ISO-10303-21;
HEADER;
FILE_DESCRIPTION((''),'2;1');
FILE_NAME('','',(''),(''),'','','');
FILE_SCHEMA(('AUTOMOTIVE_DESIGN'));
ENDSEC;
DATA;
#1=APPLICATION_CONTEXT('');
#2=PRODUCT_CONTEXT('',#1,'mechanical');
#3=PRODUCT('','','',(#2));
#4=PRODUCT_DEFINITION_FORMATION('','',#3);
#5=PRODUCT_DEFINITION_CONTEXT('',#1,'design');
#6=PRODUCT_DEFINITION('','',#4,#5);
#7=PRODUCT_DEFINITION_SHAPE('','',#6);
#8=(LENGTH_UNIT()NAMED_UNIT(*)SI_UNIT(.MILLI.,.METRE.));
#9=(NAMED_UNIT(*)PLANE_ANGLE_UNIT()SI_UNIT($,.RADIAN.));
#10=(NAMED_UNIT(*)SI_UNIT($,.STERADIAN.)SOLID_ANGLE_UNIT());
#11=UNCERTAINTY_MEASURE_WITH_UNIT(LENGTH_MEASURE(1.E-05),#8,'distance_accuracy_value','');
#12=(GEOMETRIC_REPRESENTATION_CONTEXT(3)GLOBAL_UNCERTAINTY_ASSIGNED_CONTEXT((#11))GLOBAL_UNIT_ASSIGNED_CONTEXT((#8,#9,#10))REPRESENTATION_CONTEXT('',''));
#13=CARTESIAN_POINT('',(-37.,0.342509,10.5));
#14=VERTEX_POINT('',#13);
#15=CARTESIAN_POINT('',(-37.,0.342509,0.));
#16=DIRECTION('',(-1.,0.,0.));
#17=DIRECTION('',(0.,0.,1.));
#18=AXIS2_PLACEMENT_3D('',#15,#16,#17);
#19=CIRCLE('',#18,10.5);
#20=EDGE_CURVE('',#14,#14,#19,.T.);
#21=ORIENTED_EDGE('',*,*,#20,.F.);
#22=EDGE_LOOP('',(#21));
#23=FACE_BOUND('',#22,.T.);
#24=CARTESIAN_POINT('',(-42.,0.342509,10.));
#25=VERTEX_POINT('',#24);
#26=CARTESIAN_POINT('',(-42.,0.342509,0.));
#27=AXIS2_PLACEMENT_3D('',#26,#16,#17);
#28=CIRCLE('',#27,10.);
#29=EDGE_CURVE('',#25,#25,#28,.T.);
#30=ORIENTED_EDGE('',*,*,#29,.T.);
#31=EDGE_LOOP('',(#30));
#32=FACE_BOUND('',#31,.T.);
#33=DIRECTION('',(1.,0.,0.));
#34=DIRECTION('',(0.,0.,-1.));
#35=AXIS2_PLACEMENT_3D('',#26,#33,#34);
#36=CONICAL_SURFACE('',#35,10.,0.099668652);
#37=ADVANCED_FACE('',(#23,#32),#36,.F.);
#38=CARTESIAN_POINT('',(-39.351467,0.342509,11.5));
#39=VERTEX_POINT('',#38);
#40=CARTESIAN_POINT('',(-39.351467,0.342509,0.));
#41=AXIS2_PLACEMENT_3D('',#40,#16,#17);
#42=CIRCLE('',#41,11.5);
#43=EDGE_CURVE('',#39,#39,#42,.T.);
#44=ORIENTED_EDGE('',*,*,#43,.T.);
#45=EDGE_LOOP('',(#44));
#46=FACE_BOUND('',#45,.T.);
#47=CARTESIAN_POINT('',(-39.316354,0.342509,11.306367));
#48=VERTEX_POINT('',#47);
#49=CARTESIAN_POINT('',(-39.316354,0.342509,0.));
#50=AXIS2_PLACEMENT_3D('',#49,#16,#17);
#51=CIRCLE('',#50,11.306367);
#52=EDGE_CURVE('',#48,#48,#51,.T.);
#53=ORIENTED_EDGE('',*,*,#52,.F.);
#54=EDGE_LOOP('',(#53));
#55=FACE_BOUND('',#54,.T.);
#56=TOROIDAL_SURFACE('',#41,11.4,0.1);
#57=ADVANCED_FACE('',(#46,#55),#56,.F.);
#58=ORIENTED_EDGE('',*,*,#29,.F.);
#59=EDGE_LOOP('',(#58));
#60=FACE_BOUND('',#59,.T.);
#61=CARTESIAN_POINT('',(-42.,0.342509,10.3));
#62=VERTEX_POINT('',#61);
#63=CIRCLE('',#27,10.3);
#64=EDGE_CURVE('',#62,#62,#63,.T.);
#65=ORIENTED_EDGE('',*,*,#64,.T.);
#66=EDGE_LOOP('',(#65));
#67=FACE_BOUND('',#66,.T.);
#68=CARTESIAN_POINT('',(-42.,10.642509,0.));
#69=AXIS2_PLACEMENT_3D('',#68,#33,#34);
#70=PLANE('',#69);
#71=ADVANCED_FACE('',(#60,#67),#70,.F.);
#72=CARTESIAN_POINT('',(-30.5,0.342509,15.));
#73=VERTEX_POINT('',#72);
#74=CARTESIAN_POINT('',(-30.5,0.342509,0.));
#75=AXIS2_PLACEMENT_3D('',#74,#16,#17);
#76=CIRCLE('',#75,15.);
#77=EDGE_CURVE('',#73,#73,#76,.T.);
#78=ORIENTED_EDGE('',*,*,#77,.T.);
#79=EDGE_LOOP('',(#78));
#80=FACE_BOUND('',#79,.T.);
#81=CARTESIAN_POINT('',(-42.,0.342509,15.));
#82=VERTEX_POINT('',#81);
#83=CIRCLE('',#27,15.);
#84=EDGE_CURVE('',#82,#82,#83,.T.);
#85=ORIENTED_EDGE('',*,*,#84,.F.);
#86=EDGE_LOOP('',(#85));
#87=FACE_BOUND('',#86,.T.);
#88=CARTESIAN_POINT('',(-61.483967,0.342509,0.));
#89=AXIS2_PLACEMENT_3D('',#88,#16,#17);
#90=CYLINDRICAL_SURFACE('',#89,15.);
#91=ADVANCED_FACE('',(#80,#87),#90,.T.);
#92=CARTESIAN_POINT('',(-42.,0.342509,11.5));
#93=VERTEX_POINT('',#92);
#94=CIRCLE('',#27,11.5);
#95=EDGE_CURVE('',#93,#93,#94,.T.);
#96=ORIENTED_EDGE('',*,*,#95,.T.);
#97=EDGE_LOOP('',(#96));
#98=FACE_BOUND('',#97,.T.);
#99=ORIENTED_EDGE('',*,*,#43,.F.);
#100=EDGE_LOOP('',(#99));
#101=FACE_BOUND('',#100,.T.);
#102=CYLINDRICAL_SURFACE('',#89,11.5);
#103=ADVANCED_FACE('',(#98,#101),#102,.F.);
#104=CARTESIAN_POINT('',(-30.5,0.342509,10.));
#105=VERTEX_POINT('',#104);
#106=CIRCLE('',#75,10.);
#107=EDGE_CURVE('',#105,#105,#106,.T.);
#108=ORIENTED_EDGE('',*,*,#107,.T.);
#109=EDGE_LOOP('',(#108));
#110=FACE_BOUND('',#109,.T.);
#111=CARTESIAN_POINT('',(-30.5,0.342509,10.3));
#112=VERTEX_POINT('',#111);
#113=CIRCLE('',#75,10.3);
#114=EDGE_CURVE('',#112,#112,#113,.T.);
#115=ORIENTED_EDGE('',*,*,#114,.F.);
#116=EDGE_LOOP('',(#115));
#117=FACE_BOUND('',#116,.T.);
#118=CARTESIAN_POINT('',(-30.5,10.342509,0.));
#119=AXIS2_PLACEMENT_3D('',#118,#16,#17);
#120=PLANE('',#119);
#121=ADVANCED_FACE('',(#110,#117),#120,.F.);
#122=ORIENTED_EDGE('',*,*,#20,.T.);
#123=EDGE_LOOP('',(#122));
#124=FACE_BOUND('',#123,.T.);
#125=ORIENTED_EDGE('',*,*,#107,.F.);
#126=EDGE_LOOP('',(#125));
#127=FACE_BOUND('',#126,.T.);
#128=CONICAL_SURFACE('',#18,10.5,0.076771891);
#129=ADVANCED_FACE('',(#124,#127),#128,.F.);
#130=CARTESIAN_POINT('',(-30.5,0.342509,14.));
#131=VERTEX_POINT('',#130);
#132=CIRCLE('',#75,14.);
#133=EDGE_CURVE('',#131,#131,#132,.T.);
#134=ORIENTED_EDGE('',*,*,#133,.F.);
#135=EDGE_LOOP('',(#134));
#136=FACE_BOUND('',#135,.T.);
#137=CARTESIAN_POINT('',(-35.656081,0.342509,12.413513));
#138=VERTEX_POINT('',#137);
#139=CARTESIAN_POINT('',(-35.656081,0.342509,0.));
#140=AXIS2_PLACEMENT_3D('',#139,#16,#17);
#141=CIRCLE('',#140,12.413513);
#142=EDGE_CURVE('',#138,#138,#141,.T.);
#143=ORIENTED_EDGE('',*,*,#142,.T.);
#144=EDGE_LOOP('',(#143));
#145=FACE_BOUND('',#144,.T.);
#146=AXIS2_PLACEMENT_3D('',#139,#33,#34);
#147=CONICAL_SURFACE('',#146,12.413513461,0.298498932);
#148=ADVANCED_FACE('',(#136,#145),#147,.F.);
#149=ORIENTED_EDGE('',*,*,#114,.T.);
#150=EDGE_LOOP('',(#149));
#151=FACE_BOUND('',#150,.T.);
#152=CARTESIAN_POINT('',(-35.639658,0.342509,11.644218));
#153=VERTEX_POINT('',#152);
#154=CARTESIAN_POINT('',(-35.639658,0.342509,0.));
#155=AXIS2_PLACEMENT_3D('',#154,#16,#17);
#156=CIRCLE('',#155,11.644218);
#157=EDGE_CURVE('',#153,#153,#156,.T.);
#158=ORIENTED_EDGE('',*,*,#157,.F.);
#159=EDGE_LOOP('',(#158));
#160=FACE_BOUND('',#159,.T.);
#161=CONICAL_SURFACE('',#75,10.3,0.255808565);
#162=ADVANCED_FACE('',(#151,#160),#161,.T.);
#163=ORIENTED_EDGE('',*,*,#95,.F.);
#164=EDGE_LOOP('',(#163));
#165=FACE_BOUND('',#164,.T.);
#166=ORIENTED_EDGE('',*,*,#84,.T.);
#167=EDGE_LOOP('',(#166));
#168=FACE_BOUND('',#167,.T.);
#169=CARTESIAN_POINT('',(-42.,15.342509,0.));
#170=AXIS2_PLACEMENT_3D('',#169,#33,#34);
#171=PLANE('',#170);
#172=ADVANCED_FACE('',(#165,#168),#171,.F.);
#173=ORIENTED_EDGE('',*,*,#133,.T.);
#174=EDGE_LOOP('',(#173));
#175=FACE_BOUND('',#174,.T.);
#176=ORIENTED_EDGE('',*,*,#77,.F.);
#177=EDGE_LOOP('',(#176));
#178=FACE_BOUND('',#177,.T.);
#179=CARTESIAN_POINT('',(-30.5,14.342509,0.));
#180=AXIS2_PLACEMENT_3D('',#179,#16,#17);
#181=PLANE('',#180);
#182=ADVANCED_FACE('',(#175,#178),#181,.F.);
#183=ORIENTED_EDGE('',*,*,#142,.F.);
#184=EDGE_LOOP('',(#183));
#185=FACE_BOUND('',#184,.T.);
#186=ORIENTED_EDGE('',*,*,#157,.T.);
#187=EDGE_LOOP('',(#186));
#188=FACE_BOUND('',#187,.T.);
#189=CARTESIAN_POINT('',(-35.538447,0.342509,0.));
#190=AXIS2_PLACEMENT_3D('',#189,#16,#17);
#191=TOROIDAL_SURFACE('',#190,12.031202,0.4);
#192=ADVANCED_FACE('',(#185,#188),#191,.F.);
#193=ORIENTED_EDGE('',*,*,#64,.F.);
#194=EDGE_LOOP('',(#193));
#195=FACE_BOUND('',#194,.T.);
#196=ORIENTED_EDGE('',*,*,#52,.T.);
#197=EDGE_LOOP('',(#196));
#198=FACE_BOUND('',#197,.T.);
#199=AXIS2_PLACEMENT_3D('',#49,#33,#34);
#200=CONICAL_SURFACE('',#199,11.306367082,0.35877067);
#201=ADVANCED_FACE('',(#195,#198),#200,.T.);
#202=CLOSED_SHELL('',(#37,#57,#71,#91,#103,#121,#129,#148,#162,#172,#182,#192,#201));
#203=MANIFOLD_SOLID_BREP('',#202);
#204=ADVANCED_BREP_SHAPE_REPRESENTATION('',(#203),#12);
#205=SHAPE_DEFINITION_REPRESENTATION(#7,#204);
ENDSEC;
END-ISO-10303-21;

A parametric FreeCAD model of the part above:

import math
import FreeCAD as App
import Part
import Sketcher

V = App.Vector

doc = App.newDocument("Part")
body = doc.addObject("PartDesign::Body", "Body")

sketch1 = body.newObject("Sketcher::SketchObject", "Sketch")
sketch1.AttachmentSupport = (doc.getObject("XY_Plane"), [""])
sketch1.MapMode = "FlatFace"
sketch1.addGeometry([
    Part.LineSegment(V(-30.5, 15.34, 0), V(-42, 15.34, 0)),
    Part.LineSegment(V(-42, 15.34, 0), V(-42, 11.84, 0)),
    Part.LineSegment(V(-42, 11.84, 0), V(-39.35, 11.84, 0)),
    Part.ArcOfCircle(Part.Circle(V(-39.35, 11.74, 0), V(0, 0, 1), 0.1), math.radians(-69), math.radians(90)),
    Part.LineSegment(V(-39.32, 11.65, 0), V(-42, 10.64, 0)),
    Part.LineSegment(V(-42, 10.64, 0), V(-42, 10.34, 0)),
    Part.LineSegment(V(-42, 10.34, 0), V(-37, 10.84, 0)),
    Part.LineSegment(V(-37, 10.84, 0), V(-30.5, 10.34, 0)),
    Part.LineSegment(V(-30.5, 10.34, 0), V(-30.5, 10.64, 0)),
    Part.LineSegment(V(-30.5, 10.64, 0), V(-35.64, 11.99, 0)),
    Part.ArcOfCircle(Part.Circle(V(-35.54, 12.37, 0), V(0, 0, 1), 0.4), math.radians(107), math.radians(255)),
    Part.LineSegment(V(-35.66, 12.76, 0), V(-30.5, 14.34, 0)),
    Part.LineSegment(V(-30.5, 14.34, 0), V(-30.5, 15.34, 0)),
], False)
sketch1.addGeometry(Part.LineSegment(V(-42, 0.34, 0), V(-30.5, 0.34, 0)), True)
sketch1.addConstraint([
    Sketcher.Constraint("Coincident", 0, 2, 1, 1),
    Sketcher.Constraint("Coincident", 1, 2, 2, 1),
    Sketcher.Constraint("Tangent", 2, 2, 3, 2),
    Sketcher.Constraint("Tangent", 3, 1, 4, 1),
    Sketcher.Constraint("Coincident", 4, 2, 5, 1),
    Sketcher.Constraint("Coincident", 5, 2, 6, 1),
    Sketcher.Constraint("Coincident", 6, 2, 7, 1),
    Sketcher.Constraint("Coincident", 7, 2, 8, 1),
    Sketcher.Constraint("Coincident", 8, 2, 9, 1),
    Sketcher.Constraint("Tangent", 9, 2, 10, 2),
    Sketcher.Constraint("Tangent", 10, 1, 11, 1),
    Sketcher.Constraint("Coincident", 11, 2, 12, 1),
    Sketcher.Constraint("Coincident", 12, 2, 0, 1),
    Sketcher.Constraint("Horizontal", 0),
    Sketcher.Constraint("Vertical", 1),
    Sketcher.Constraint("Horizontal", 2),
    Sketcher.Constraint("Vertical", 5),
    Sketcher.Constraint("Vertical", 8),
    Sketcher.Constraint("Vertical", 12),
    Sketcher.Constraint("Horizontal", 13),
    Sketcher.Constraint("Horizontal", 5, 2, 7, 2),
    Sketcher.Constraint("Horizontal", 4, 2, 8, 2),
    Sketcher.Constraint("Vertical", 1, 2, 4, 2),
    Sketcher.Constraint("Vertical", 8, 2, 11, 2),
    Sketcher.Constraint("Vertical", 5, 2, 13, 1),
    Sketcher.Constraint("Vertical", 12, 2, 13, 2),
    Sketcher.Constraint("Radius", 3, 0.1),
    Sketcher.Constraint("Radius", 10, 0.4),
    Sketcher.Constraint("DistanceY", 12, 1, 12, 2, 1.0),
    Sketcher.Constraint("DistanceX", 0, 2, 0, 1, 11.5),
    Sketcher.Constraint("DistanceY", 1, 2, 1, 1, 3.5),
    Sketcher.Constraint("DistanceY", 5, 2, 5, 1, 0.3),
    Sketcher.Constraint("DistanceX", 0, 2, -1, 1, 42.0),
    Sketcher.Constraint("DistanceX", 6, 2, -1, 1, 37.0),
    Sketcher.Constraint("DistanceY", 6, 2, 2, 2, 1.0),
    Sketcher.Constraint("DistanceY", 7, 2, 11, 2, 4.0),
    Sketcher.Constraint("DistanceY", 13, 1, 5, 2, 10.0),
    Sketcher.Constraint("DistanceY", 3, 3, 10, 3, 0.631202),
    Sketcher.Constraint("DistanceX", 2, 1, 2, 2, 2.648533),
    Sketcher.Constraint("DistanceY", -1, 1, 3, 3, 11.742509),
    Sketcher.Constraint("DistanceX", 9, 2, -1, 1, 35.639658),
])
revolution = body.newObject("PartDesign::Revolution", "Revolution")
revolution.Profile = sketch1
revolution.ReferenceAxis = (sketch1, ["Axis0"])
revolution.Angle = 360

doc.recompute()
